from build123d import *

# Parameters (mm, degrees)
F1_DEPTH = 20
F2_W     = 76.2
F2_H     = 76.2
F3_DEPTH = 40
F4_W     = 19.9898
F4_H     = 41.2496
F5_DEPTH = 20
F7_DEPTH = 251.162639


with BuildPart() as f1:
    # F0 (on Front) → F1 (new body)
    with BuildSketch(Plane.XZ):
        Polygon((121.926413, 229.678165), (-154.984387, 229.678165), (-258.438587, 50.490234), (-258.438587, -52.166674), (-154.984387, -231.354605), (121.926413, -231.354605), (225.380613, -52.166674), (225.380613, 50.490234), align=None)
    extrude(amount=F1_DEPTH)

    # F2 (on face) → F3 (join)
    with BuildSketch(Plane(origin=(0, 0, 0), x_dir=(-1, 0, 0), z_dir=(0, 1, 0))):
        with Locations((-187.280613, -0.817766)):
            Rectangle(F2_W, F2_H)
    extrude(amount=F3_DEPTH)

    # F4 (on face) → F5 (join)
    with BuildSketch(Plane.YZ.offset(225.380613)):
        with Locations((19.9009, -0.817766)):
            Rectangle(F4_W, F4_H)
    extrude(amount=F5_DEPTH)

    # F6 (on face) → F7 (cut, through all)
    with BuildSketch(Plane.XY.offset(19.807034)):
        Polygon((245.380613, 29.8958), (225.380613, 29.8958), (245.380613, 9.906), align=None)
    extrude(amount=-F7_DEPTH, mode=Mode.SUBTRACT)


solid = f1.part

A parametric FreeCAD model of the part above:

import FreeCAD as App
import Part
import Sketcher

V = App.Vector
Q = App.Units.Quantity


def add_polygon(sketch, points):
    """Adds a closed chain of lines whose ends are joined by coincident constraints."""
    first, n = sketch.GeometryCount, len(points)
    for a, b in zip(points, points[1:] + points[:1]):
        sketch.addGeometry(Part.LineSegment(App.Vector(*a, 0), App.Vector(*b, 0)), False)
    for i in range(n):
        sketch.addConstraint(Sketcher.Constraint("Coincident", first + i, 2, first + (i + 1) % n, 1))

doc = App.newDocument("Part")
body = doc.addObject("PartDesign::Body", "Body")

# Sketch on XZ plane
sketch1 = body.newObject("Sketcher::SketchObject", "Sketch")
sketch1.AttachmentSupport = (doc.getObject("XZ_Plane"), [""])
sketch1.MapMode = "FlatFace"
add_polygon(sketch1, [(122, 230), (-155, 230), (-258, 50), (-258, -52), (-155, -231), (122, -231), (225, -52), (225, 50)])  # lines 0-7
sketch1.addConstraint([
    Sketcher.Constraint("Horizontal", 0),
    Sketcher.Constraint("Vertical", 2),
    Sketcher.Constraint("Horizontal", 4),
    Sketcher.Constraint("Vertical", 6),
    Sketcher.Constraint("Parallel", 1, 5),
    Sketcher.Constraint("Parallel", 3, 7),
    Sketcher.Constraint("Horizontal", 2, 2, 5, 2),
    Sketcher.Constraint("Horizontal", 1, 2, 6, 2),
    Sketcher.Constraint("Vertical", 0, 2, 3, 2),
    Sketcher.Constraint("Vertical", 4, 2, 7, 2),
    Sketcher.Constraint("Angle", 1, Q("-120 deg")),
    Sketcher.Constraint("DistanceX", 0, 2, 0, 1, Q("10.902 in")),
    Sketcher.Constraint("Distance", 1, Q("8.146 in")),
    Sketcher.Constraint("DistanceY", 2, 2, 2, 1, 102.656908),
    Sketcher.Constraint("DistanceX", 0, 2, -1, 1, 154.984387),
    Sketcher.Constraint("DistanceY", -1, 1, 0, 2, 229.678165),
])
pad1 = body.newObject("PartDesign::Pad", "Pad")
pad1.Profile = sketch1
pad1.Length = 20

# Sketch on XZ plane
sketch2 = body.newObject("Sketcher::SketchObject", "Sketch001")
sketch2.AttachmentSupport = (doc.getObject("XZ_Plane"), [""])
sketch2.MapMode = "FlatFace"
add_polygon(sketch2, [(225, 37), (225, -39), (149, -39), (149, 37)])  # lines 0-3
sketch2.addConstraint([
    Sketcher.Constraint("Vertical", 0),
    Sketcher.Constraint("Horizontal", 1),
    Sketcher.Constraint("Vertical", 2),
    Sketcher.Constraint("Horizontal", 3),
    Sketcher.Constraint("Equal", 3, 0),
    Sketcher.Constraint("DistanceX", 1, 2, 1, 1, Q("3 in")),
    Sketcher.Constraint("DistanceX", -1, 1, 0, 2, 225.380613),
    Sketcher.Constraint("DistanceY", 0, 2, -1, 1, 38.917766),
])
pad2 = body.newObject("PartDesign::Pad", "Pad001")
pad2.Profile = sketch2
pad2.Length = 40
pad2.Reversed = True

# Sketch on YZ plane
sketch3 = body.newObject("Sketcher::SketchObject", "Sketch002")
sketch3.AttachmentSupport = (doc.getObject("YZ_Plane"), [""])
sketch3.MapMode = "FlatFace"
sketch3.AttachmentOffset = App.Placement(V(0, 0, 225.380613), App.Rotation())
add_polygon(sketch3, [(10, 20), (10, -21), (30, -21), (30, 20)])  # lines 0-3
sketch3.addConstraint([
    Sketcher.Constraint("Vertical", 0),
    Sketcher.Constraint("Horizontal", 1),
    Sketcher.Constraint("Vertical", 2),
    Sketcher.Constraint("Horizontal", 3),
    Sketcher.Constraint("DistanceX", 1, 1, 1, 2, Q("0.787 in")),
    Sketcher.Constraint("DistanceY", 0, 2, 0, 1, Q("1.624 in")),
    Sketcher.Constraint("DistanceX", -1, 1, 0, 2, Q("0.39 in")),
    Sketcher.Constraint("DistanceY", 0, 2, -1, 1, 21.442566),
])
pad3 = body.newObject("PartDesign::Pad", "Pad002")
pad3.Profile = sketch3
pad3.Length = 20

# Sketch on XY plane
sketch4 = body.newObject("Sketcher::SketchObject", "Sketch003")
sketch4.AttachmentSupport = (doc.getObject("XY_Plane"), [""])
sketch4.MapMode = "FlatFace"
sketch4.AttachmentOffset = App.Placement(V(0, 0, 19.807034), App.Rotation())
add_polygon(sketch4, [(245, 30), (225, 30), (245, 10)])  # lines 0-2
sketch4.addConstraint([
    Sketcher.Constraint("Horizontal", 0),
    Sketcher.Constraint("Vertical", 2),
    Sketcher.Constraint("DistanceY", 2, 1, 2, 2, Q("0.787 in")),
    Sketcher.Constraint("DistanceY", -1, 1, 1, 2, Q("0.39 in")),
    Sketcher.Constraint("DistanceX", 0, 2, 0, 1, 20.0),
    Sketcher.Constraint("DistanceX", -1, 1, 0, 2, 225.380613),
])
pocket1 = body.newObject("PartDesign::Pocket", "Pocket")
pocket1.Profile = sketch4
pocket1.Type = "ThroughAll"

doc.recompute()
